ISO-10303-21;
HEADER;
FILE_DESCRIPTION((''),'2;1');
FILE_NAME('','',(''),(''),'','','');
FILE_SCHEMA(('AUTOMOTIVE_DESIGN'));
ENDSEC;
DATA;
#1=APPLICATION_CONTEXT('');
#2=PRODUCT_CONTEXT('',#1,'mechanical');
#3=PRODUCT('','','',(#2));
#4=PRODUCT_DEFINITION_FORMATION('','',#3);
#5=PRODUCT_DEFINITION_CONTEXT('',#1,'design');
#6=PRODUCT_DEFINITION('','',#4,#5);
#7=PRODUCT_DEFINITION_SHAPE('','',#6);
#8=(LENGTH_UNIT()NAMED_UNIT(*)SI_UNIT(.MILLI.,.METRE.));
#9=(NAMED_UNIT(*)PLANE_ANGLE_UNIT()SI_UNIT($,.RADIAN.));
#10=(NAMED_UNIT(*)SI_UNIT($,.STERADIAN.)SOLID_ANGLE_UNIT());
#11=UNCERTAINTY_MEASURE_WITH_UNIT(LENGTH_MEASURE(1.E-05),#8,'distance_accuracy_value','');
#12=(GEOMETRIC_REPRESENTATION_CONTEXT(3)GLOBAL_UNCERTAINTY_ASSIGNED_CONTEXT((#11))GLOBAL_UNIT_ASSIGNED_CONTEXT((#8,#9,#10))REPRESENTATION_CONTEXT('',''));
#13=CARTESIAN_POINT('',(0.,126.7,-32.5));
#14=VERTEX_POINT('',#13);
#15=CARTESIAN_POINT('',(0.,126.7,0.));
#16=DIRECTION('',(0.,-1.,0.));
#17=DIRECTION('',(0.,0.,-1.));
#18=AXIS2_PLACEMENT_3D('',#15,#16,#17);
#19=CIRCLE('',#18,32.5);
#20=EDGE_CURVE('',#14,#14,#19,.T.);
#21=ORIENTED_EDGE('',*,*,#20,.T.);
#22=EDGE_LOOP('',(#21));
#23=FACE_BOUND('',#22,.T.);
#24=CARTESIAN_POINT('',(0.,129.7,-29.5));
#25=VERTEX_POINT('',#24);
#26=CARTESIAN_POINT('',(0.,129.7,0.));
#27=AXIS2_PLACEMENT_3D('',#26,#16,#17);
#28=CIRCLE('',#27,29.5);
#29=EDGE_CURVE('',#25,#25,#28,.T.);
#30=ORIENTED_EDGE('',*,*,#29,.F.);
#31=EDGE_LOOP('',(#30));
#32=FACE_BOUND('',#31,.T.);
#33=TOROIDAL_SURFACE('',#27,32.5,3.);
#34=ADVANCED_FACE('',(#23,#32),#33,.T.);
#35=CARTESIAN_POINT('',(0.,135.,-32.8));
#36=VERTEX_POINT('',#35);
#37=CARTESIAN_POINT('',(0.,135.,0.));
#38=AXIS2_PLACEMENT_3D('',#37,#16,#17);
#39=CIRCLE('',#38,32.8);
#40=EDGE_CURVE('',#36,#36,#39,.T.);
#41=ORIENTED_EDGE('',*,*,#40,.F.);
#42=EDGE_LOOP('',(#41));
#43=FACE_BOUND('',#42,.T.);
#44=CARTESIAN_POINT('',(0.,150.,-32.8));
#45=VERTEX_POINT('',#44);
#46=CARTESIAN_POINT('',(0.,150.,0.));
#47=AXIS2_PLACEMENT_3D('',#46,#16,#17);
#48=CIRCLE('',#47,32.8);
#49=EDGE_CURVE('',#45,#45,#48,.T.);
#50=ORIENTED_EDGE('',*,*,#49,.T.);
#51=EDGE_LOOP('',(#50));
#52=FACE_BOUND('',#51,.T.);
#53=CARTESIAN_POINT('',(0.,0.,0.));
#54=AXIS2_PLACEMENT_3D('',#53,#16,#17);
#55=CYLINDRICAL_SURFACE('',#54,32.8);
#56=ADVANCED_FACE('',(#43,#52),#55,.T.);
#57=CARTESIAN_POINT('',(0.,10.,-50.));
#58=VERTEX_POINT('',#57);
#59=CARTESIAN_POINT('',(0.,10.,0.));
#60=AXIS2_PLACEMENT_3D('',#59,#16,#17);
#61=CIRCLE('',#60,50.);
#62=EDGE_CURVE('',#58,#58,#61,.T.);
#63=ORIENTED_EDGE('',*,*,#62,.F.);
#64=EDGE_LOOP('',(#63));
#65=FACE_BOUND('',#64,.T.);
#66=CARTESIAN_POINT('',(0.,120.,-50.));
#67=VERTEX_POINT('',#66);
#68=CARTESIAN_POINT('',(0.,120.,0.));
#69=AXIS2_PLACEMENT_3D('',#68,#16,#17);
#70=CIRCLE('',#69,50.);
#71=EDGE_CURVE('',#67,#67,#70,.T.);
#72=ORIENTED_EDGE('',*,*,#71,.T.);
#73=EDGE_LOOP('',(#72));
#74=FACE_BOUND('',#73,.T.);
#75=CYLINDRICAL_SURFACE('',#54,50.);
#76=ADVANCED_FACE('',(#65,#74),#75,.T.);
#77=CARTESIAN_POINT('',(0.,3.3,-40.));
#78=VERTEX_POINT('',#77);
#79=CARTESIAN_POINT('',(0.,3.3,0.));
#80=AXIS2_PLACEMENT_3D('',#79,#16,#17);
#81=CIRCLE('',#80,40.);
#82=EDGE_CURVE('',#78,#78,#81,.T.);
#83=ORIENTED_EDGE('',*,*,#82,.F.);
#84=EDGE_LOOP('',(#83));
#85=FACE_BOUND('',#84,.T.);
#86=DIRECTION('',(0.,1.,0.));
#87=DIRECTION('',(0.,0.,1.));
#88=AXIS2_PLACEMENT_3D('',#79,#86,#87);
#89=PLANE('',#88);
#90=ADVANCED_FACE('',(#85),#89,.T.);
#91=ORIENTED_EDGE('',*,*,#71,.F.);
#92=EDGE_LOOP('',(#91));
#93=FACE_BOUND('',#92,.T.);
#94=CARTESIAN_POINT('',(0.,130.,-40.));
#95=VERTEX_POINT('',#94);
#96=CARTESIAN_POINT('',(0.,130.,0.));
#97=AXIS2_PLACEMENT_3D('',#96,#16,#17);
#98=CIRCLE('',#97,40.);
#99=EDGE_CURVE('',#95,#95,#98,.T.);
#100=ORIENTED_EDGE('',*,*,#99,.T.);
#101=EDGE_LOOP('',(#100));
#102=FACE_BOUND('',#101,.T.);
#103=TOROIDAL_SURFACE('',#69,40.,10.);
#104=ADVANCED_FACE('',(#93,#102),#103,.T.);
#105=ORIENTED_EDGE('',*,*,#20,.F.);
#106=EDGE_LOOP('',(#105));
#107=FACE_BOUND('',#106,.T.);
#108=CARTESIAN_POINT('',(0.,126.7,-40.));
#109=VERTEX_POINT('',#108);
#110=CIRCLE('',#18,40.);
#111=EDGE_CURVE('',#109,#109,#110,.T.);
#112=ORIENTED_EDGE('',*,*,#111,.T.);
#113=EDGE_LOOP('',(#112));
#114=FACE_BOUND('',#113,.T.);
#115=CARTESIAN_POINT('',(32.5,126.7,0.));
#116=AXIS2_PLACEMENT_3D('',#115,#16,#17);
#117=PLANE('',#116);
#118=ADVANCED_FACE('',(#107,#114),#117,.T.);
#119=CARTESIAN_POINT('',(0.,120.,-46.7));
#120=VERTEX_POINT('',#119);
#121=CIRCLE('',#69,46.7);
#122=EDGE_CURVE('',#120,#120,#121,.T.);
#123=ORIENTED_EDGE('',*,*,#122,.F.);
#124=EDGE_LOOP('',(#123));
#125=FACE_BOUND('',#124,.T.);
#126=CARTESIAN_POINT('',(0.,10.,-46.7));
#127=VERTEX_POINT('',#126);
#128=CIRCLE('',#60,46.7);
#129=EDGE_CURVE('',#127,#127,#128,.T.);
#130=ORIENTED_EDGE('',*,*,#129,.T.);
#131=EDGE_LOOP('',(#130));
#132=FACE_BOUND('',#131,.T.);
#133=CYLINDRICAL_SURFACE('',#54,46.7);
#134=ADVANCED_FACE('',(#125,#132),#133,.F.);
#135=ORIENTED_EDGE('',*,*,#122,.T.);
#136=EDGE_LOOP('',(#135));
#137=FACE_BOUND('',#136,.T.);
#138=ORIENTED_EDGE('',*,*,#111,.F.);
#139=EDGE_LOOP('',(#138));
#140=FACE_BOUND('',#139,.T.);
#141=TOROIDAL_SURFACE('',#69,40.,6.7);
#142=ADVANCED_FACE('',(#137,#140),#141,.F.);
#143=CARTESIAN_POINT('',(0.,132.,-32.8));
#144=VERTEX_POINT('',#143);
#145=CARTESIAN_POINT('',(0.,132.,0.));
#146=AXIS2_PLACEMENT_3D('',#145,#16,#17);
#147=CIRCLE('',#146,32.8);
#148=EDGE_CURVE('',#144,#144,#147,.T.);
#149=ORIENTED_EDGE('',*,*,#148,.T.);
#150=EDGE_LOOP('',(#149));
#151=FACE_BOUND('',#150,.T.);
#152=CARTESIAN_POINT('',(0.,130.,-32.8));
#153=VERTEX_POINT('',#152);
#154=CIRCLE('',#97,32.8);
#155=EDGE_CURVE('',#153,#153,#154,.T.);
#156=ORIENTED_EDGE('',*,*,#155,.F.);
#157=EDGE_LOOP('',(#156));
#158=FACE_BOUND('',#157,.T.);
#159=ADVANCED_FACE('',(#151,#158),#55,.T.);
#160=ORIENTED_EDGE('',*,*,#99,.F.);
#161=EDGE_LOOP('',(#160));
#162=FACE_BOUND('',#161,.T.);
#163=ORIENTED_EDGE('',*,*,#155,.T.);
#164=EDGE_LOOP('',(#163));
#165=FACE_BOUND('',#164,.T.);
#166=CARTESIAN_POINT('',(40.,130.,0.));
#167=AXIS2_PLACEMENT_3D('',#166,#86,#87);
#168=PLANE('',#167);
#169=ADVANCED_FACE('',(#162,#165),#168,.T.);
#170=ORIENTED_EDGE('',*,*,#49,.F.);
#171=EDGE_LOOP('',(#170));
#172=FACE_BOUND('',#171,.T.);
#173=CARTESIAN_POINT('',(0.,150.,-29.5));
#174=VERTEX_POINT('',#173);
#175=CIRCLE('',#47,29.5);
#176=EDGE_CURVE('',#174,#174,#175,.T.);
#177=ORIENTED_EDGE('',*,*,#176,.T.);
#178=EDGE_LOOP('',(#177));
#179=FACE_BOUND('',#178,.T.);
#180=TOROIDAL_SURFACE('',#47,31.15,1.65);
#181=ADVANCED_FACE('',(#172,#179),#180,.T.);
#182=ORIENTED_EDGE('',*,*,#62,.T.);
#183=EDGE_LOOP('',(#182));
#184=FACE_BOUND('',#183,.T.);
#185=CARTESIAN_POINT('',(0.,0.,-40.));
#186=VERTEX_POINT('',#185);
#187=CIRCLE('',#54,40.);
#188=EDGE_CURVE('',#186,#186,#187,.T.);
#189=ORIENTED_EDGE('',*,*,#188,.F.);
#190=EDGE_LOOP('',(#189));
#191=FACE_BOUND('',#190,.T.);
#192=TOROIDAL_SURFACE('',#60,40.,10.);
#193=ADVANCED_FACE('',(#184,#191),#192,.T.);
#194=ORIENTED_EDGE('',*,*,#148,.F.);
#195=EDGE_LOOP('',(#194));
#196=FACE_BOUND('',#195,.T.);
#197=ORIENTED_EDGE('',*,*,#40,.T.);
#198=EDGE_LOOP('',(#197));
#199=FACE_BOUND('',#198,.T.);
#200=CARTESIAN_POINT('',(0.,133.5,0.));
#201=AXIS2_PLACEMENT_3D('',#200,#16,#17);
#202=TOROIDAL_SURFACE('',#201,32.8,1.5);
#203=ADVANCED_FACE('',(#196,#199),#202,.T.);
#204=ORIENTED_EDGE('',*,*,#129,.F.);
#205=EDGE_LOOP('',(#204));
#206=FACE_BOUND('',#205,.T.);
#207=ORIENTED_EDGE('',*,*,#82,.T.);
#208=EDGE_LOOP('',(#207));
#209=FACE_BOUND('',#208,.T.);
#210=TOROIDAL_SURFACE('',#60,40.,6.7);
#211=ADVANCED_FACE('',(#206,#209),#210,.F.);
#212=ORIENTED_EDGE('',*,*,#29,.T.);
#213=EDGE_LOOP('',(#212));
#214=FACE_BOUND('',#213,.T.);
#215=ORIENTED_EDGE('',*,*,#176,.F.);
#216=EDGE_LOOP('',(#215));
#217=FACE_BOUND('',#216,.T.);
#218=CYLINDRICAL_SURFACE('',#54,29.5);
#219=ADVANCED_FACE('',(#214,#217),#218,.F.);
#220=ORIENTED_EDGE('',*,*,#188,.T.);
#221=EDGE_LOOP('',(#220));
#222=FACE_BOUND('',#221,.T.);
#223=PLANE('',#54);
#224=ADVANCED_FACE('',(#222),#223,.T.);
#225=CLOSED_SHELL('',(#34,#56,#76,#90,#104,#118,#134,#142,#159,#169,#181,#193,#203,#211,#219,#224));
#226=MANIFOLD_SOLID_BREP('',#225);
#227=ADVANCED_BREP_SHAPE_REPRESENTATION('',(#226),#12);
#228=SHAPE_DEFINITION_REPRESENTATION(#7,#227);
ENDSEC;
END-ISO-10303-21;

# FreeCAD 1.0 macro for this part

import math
import FreeCAD as App
import Part
import Sketcher

V = App.Vector
Q = App.Units.Quantity

doc = App.newDocument("Part")
body = doc.addObject("PartDesign::Body", "Body")

# Sketch on XY plane
sketch1 = body.newObject("Sketcher::SketchObject", "Sketch")
sketch1.AttachmentSupport = (doc.getObject("XY_Plane"), [""])
sketch1.MapMode = "FlatFace"
sketch1.addGeometry([
    Part.LineSegment(V(0, 0, 0), V(40, 0, 0)),  # 0
    Part.ArcOfCircle(Part.Circle(V(40, 10, 0), V(0, 0, 1), 10), math.radians(-90), math.radians(0)),  # 1
    Part.LineSegment(V(50, 10, 0), V(50, 120, 0)),  # 2
    Part.ArcOfCircle(Part.Circle(V(40, 120, 0), V(0, 0, 1), 10), math.radians(0), math.radians(90)),  # 3
    Part.LineSegment(V(40, 130, 0), V(32.8, 130, 0)),  # 4
    Part.LineSegment(V(32.8, 130, 0), V(32.8, 132, 0)),  # 5
    Part.ArcOfCircle(Part.Circle(V(32.8, 133.5, 0), V(0, 0, 1), 1.5), math.radians(-90), math.radians(90)),  # 6
    Part.LineSegment(V(32.8, 135, 0), V(32.8, 150, 0)),  # 7
    Part.ArcOfCircle(Part.Circle(V(31.1, 150, 0), V(0, 0, 1), 1.6), math.radians(0), math.radians(180)),  # 8
    Part.LineSegment(V(29.5, 150, 0), V(29.5, 129.7, 0)),  # 9
    Part.ArcOfCircle(Part.Circle(V(32.5, 129.7, 0), V(0, 0, 1), 3), math.radians(180), math.radians(270)),  # 10
    Part.LineSegment(V(32.5, 126.7, 0), V(40, 126.7, 0)),  # 11
    Part.ArcOfCircle(Part.Circle(V(40, 120, 0), V(0, 0, 1), 6.7), math.radians(0), math.radians(90)),  # 12
    Part.LineSegment(V(46.7, 120, 0), V(46.7, 10, 0)),  # 13
    Part.ArcOfCircle(Part.Circle(V(40, 10, 0), V(0, 0, 1), 6.7), math.radians(-90), math.radians(0)),  # 14
    Part.LineSegment(V(40, 3.3, 0), V(0, 3.3, 0)),  # 15
    Part.LineSegment(V(0, 3.3, 0), V(0, 0, 0)),  # 16
], False)
sketch1.addConstraint([
    Sketcher.Constraint("Tangent", 0, 2, 1, 1),
    Sketcher.Constraint("Tangent", 1, 2, 2, 1),
    Sketcher.Constraint("Tangent", 2, 2, 3, 1),
    Sketcher.Constraint("Tangent", 3, 2, 4, 1),
    Sketcher.Constraint("Coincident", 4, 2, 5, 1),
    Sketcher.Constraint("Coincident", 5, 2, 6, 1),
    Sketcher.Constraint("Coincident", 6, 2, 7, 1),
    Sketcher.Constraint("Tangent", 7, 2, 8, 1),
    Sketcher.Constraint("Tangent", 8, 2, 9, 1),
    Sketcher.Constraint("Tangent", 9, 2, 10, 1),
    Sketcher.Constraint("Tangent", 10, 2, 11, 1),
    Sketcher.Constraint("Tangent", 11, 2, 12, 2),
    Sketcher.Constraint("Tangent", 12, 1, 13, 1),
    Sketcher.Constraint("Tangent", 13, 2, 14, 2),
    Sketcher.Constraint("Tangent", 14, 1, 15, 1),
    Sketcher.Constraint("Coincident", 15, 2, 16, 1),
    Sketcher.Constraint("Coincident", 16, 2, 0, 1),
    Sketcher.Constraint("Horizontal", 0),
    Sketcher.Constraint("Vertical", 2),
    Sketcher.Constraint("Horizontal", 4),
    Sketcher.Constraint("Vertical", 5),
    Sketcher.Constraint("Vertical", 7),
    Sketcher.Constraint("Vertical", 9),
    Sketcher.Constraint("Horizontal", 11),
    Sketcher.Constraint("Vertical", 13),
    Sketcher.Constraint("Horizontal", 15),
    Sketcher.Constraint("Vertical", 16),
    Sketcher.Constraint("Coincident", 16, 2, -1, 1),
    Sketcher.Constraint("Coincident", 12, 3, 3, 3),
    Sketcher.Constraint("Coincident", 14, 3, 1, 3),
    Sketcher.Constraint("Equal", 1, 3),
    Sketcher.Constraint("Vertical", 6, 3, 4, 2),
    Sketcher.Constraint("Vertical", 5, 2, 6, 2),
    Sketcher.Constraint("Radius", 1, Q("10 mm")),
    Sketcher.Constraint("Radius", 10, Q("3 mm")),
    Sketcher.Constraint("Radius", 6, Q("1.5 mm")),
    Sketcher.Constraint("Radius", 12, Q("6.7 mm")),
    Sketcher.Constraint("DistanceX", 0, 1, 0, 2, Q("40 mm")),
    Sketcher.Constraint("DistanceY", 2, 1, 2, 2, Q("110 mm")),
    Sketcher.Constraint("DistanceY", 5, 1, 5, 2, Q("2 mm")),
    Sketcher.Constraint("DistanceY", 7, 1, 7, 2, Q("15 mm")),
    Sketcher.Constraint("Radius", 8, Q("1.65 mm")),
    Sketcher.Constraint("DistanceX", 4, 2, 4, 1, Q("7.2 mm")),
])
revolution = body.newObject("PartDesign::Revolution", "Revolution")
revolution.Profile = sketch1
revolution.ReferenceAxis = (sketch1, ["V_Axis"])
revolution.Angle = 360

doc.recompute()
